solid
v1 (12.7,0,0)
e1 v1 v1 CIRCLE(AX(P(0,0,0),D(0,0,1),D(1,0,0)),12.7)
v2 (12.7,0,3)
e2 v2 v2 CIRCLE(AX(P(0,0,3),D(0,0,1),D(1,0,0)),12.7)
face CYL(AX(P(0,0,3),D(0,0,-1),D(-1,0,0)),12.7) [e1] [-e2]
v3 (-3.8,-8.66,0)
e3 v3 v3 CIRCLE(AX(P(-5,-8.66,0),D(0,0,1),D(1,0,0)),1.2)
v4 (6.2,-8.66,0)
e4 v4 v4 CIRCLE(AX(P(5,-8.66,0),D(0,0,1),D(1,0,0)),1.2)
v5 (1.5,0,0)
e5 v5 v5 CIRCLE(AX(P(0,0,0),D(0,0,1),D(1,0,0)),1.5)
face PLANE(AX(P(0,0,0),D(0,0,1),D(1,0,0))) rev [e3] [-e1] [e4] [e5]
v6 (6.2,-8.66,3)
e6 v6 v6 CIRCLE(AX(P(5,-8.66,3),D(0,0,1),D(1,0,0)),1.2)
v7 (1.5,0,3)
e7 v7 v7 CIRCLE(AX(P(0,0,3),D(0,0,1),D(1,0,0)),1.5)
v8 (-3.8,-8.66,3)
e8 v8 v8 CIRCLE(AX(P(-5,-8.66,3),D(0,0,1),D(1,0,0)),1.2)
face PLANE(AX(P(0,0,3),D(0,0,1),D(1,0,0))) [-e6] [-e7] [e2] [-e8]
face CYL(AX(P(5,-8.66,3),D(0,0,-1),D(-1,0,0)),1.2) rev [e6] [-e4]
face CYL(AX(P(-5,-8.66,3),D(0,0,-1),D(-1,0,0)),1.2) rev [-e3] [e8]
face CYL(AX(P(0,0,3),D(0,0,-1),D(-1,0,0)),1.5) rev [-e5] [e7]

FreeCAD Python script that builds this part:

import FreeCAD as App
import Part
import Sketcher
from FreeCAD import Vector

doc = App.newDocument("Part")
body = doc.addObject("PartDesign::Body", "Body")

# Sketch on XY plane
sketch1 = doc.addObject("Sketcher::SketchObject", "Sketch")
body.addObject(sketch1)
sketch1.AttachmentSupport = (doc.XY_Plane, [""])
sketch1.MapMode = "FlatFace"
sketch1.addGeometry([
    Part.Circle(Vector(0, 0, 0), Vector(0, 0, 1), 12.7),
    Part.Circle(Vector(-5, -8.7, 0), Vector(0, 0, 1), 1.2),
    Part.Circle(Vector(5, -8.7, 0), Vector(0, 0, 1), 1.2),
    Part.Circle(Vector(0, 0, 0), Vector(0, 0, 1), 1.5),
], False)
sketch1.addConstraint([
    Sketcher.Constraint("Coincident", 0, 3, -1, 1),
    Sketcher.Constraint("Coincident", 3, 3, -1, 1),
    Sketcher.Constraint("Equal", 1, 2),
    Sketcher.Constraint("Symmetric", 1, 3, 2, 3, -2),
    Sketcher.Constraint("Diameter", 3, 3.0),
    Sketcher.Constraint("Diameter", 0, 25.4),
    Sketcher.Constraint("Diameter", 1, 2.4),
    Sketcher.Constraint("DistanceX", 1, 3, -1, 1, 5.0),
    Sketcher.Constraint("DistanceY", 1, 3, -1, 1, 8.66),
])
pad1 = doc.addObject("PartDesign::Pad", "Pad")
body.addObject(pad1)
pad1.Profile = sketch1
pad1.Length = 3

doc.recompute()
